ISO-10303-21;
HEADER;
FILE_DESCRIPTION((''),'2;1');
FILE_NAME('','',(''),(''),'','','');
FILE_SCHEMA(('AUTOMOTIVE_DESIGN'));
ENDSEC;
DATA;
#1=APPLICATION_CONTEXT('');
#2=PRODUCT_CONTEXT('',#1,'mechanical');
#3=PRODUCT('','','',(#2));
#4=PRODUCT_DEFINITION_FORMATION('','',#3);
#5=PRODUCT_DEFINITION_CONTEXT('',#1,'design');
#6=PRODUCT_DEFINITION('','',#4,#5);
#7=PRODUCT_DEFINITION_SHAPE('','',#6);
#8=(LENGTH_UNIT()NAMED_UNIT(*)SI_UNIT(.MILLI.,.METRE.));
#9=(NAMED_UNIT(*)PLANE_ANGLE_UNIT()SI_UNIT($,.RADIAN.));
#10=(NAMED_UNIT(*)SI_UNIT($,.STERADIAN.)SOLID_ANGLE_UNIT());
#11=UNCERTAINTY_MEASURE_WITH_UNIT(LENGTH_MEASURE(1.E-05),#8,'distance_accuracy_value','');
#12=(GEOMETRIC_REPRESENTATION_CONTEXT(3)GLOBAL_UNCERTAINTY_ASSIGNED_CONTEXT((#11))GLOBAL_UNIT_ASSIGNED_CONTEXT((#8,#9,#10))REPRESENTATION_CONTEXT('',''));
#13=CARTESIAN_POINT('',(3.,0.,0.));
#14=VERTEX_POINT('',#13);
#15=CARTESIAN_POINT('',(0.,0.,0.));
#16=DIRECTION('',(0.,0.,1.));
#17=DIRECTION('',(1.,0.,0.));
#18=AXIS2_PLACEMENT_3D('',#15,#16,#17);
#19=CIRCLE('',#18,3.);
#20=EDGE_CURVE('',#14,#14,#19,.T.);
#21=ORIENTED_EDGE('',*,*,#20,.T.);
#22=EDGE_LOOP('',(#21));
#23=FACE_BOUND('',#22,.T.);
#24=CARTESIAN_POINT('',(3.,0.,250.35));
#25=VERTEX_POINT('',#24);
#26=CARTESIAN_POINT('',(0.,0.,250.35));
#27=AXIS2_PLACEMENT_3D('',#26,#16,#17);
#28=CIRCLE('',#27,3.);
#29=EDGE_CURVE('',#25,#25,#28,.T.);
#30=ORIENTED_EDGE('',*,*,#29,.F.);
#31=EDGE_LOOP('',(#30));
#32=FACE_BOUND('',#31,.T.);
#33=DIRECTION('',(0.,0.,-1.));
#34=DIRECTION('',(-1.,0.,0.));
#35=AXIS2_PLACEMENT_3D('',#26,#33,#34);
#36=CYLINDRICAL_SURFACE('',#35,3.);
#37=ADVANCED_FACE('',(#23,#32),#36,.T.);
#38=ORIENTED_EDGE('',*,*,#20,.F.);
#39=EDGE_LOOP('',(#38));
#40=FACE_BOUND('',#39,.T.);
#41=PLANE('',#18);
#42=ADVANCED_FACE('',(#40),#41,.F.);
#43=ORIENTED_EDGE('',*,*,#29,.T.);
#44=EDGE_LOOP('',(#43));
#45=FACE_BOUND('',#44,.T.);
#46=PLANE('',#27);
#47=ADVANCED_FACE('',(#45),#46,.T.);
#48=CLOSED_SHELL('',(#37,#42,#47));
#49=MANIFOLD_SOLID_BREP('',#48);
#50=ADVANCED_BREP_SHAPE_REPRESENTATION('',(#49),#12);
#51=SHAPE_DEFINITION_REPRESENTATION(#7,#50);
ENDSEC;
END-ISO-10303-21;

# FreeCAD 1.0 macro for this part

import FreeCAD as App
import Part
import Sketcher

V = App.Vector
Q = App.Units.Quantity

doc = App.newDocument("Part")
body = doc.addObject("PartDesign::Body", "Body")

sketch1 = body.newObject("Sketcher::SketchObject", "Sketch")
sketch1.AttachmentSupport = (doc.getObject("XY_Plane"), [""])
sketch1.MapMode = "FlatFace"
sketch1.addGeometry(Part.Circle(V(0, 0, 0), V(0, 0, 1), 3), False)
sketch1.addConstraint([
    Sketcher.Constraint("Coincident", 0, 3, -1, 1),
    Sketcher.Constraint("Diameter", 0, Q("6 mm")),
])
pad1 = body.newObject("PartDesign::Pad", "Pad")
pad1.Profile = sketch1
pad1.Length = 250.35

doc.recompute()
